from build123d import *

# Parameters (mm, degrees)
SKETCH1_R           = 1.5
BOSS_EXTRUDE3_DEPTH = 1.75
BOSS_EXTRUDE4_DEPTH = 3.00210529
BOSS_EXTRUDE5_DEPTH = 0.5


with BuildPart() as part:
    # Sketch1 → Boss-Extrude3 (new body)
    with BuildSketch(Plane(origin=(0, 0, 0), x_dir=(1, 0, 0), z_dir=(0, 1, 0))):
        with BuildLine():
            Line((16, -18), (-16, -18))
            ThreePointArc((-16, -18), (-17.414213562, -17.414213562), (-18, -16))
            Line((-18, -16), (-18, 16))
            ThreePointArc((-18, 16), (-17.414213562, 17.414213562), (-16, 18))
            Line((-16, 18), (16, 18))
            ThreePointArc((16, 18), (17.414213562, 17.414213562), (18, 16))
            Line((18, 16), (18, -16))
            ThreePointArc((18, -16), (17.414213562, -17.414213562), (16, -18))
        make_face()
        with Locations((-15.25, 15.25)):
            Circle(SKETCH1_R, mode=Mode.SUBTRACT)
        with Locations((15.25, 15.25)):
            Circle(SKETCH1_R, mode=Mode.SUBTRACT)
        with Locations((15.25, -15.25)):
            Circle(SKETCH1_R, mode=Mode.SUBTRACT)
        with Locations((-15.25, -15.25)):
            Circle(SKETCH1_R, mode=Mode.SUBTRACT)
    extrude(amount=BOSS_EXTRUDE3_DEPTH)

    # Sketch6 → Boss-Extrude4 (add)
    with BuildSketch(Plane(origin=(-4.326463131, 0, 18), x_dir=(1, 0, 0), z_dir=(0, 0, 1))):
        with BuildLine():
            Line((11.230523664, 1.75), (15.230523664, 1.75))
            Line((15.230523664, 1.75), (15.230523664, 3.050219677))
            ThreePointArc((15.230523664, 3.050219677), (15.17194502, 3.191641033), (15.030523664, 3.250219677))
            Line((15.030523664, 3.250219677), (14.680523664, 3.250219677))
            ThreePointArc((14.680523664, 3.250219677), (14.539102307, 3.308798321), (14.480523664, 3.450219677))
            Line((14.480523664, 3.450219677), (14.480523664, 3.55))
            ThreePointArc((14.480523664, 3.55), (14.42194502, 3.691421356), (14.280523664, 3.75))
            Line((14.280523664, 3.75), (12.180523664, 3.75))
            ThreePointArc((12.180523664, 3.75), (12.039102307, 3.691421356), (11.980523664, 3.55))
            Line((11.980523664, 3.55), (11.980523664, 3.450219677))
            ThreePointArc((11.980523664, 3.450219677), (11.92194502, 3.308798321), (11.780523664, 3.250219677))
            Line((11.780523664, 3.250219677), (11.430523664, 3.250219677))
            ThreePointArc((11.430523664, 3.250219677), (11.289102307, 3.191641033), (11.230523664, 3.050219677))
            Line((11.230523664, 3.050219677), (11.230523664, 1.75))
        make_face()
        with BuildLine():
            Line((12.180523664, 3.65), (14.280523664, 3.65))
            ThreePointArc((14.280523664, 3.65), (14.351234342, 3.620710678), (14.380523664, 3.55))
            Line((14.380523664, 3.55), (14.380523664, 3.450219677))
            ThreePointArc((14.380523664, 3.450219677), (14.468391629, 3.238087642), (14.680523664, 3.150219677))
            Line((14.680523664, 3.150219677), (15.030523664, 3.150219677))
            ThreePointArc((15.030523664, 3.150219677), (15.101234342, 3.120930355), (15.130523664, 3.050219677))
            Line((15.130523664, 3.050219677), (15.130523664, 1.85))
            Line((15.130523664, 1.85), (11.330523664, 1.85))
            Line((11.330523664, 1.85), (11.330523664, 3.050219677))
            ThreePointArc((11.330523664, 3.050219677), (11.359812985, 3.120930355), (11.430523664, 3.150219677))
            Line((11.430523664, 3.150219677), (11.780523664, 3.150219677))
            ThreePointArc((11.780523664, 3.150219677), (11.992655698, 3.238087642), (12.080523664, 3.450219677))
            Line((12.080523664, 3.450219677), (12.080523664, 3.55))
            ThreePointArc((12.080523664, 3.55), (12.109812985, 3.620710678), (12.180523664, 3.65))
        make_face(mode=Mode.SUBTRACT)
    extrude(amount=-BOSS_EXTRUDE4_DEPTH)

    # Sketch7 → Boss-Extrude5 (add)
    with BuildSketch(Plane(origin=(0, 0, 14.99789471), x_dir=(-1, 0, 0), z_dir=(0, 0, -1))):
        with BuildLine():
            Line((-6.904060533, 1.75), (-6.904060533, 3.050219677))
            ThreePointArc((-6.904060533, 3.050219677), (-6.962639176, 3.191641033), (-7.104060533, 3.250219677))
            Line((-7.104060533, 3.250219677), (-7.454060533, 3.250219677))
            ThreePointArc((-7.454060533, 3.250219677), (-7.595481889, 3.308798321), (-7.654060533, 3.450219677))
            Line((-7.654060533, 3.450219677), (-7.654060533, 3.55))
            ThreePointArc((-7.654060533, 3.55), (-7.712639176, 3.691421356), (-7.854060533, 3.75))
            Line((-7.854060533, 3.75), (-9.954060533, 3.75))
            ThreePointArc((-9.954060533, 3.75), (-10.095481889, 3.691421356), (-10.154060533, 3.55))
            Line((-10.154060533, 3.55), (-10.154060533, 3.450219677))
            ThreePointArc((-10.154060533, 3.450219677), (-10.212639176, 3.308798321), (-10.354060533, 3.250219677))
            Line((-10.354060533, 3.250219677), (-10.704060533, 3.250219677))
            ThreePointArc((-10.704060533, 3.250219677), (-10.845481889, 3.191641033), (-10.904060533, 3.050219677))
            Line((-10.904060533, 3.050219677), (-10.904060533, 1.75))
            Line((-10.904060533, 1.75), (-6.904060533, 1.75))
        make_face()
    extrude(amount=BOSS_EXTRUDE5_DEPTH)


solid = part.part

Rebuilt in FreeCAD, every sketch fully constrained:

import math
import FreeCAD as App
import Part
import Sketcher

V = App.Vector
Q = App.Units.Quantity

doc = App.newDocument("Part")
body = doc.addObject("PartDesign::Body", "Body")

# Sketch on XZ plane
sketch1 = body.newObject("Sketcher::SketchObject", "Sketch")
sketch1.AttachmentSupport = (doc.getObject("XZ_Plane"), [""])
sketch1.MapMode = "FlatFace"
sketch1.addGeometry(Part.LineSegment(V(-16, 18, 0), V(16, 18, 0)), False)
sketch1.addGeometry(Part.ArcOfCircle(Part.Circle(V(16, 16, 0), V(0, 0, 1), 2), math.radians(0), math.radians(90)), False)
sketch1.addGeometry(Part.LineSegment(V(18, 16, 0), V(18, -16, 0)), False)
sketch1.addGeometry(Part.ArcOfCircle(Part.Circle(V(16, -16, 0), V(0, 0, 1), 2), math.radians(-90), math.radians(0)), False)
sketch1.addGeometry(Part.LineSegment(V(16, -18, 0), V(-16, -18, 0)), False)
sketch1.addGeometry(Part.ArcOfCircle(Part.Circle(V(-16, -16, 0), V(0, 0, 1), 2), math.radians(-180), math.radians(-90)), False)
sketch1.addGeometry(Part.LineSegment(V(-18, -16, 0), V(-18, 16, 0)), False)
sketch1.addGeometry(Part.ArcOfCircle(Part.Circle(V(-16, 16, 0), V(0, 0, 1), 2), math.radians(90), math.radians(180)), False)
sketch1.addGeometry(Part.Circle(V(15.2, 15.2, 0), V(0, 0, 1), 1.5), False)
sketch1.addGeometry(Part.Circle(V(-15.2, 15.2, 0), V(0, 0, 1), 1.5), False)
sketch1.addGeometry(Part.Circle(V(15.2, -15.2, 0), V(0, 0, 1), 1.5), False)
sketch1.addGeometry(Part.Circle(V(-15.2, -15.2, 0), V(0, 0, 1), 1.5), False)
sketch1.addConstraint(Sketcher.Constraint("Tangent", 0, 2, 1, 2))
sketch1.addConstraint(Sketcher.Constraint("Tangent", 1, 1, 2, 1))
sketch1.addConstraint(Sketcher.Constraint("Tangent", 2, 2, 3, 2))
sketch1.addConstraint(Sketcher.Constraint("Tangent", 3, 1, 4, 1))
sketch1.addConstraint(Sketcher.Constraint("Tangent", 4, 2, 5, 2))
sketch1.addConstraint(Sketcher.Constraint("Tangent", 5, 1, 6, 1))
sketch1.addConstraint(Sketcher.Constraint("Tangent", 6, 2, 7, 2))
sketch1.addConstraint(Sketcher.Constraint("Tangent", 7, 1, 0, 1))
sketch1.addConstraint(Sketcher.Constraint("Horizontal", 0))
sketch1.addConstraint(Sketcher.Constraint("Vertical", 2))
sketch1.addConstraint(Sketcher.Constraint("Horizontal", 4))
sketch1.addConstraint(Sketcher.Constraint("Vertical", 6))
sketch1.addConstraint(Sketcher.Constraint("Equal", 1, 3))
sketch1.addConstraint(Sketcher.Constraint("Equal", 3, 5))
sketch1.addConstraint(Sketcher.Constraint("Equal", 5, 7))
sketch1.addConstraint(Sketcher.Constraint("Equal", 8, 9))
sketch1.addConstraint(Sketcher.Constraint("Equal", 9, 10))
sketch1.addConstraint(Sketcher.Constraint("Equal", 10, 11))
sketch1.addConstraint(Sketcher.Constraint("Symmetric", 1, 3, 5, 3, -1, 1))
sketch1.addConstraint(Sketcher.Constraint("Symmetric", 9, 3, 10, 3, -1, 1))
sketch1.addConstraint(Sketcher.Constraint("Symmetric", 8, 3, 11, 3, -1, 1))
sketch1.addConstraint(Sketcher.Constraint("Symmetric", 8, 3, 9, 3, -2))
sketch1.addConstraint(Sketcher.Constraint("Equal", 4, 2))
sketch1.addConstraint(Sketcher.Constraint("Diameter", 8, Q("3 mm")))
sketch1.addConstraint(Sketcher.Constraint("Radius", 1, Q("2 mm")))
sketch1.addConstraint(Sketcher.Constraint("DistanceX", 0, 1, 0, 2, Q("32 mm")))
sketch1.addConstraint(Sketcher.Constraint("DistanceX", 9, 3, 8, 3, Q("30.5 mm")))
sketch1.addConstraint(Sketcher.Constraint("DistanceY", 10, 3, 8, 3, Q("30.5 mm")))
pad1 = body.newObject("PartDesign::Pad", "Pad")
pad1.Profile = sketch1
pad1.Length = 1.75
pad1.Reversed = True

# Sketch on XY plane
sketch2 = body.newObject("Sketcher::SketchObject", "Sketch001")
sketch2.AttachmentSupport = (doc.getObject("XY_Plane"), [""])
sketch2.MapMode = "FlatFace"
sketch2.AttachmentOffset = App.Placement(V(0, 0, 18), App.Rotation())
sketch2.addGeometry(Part.LineSegment(V(6.9, 1.75, 0), V(10.9, 1.75, 0)), False)
sketch2.addGeometry(Part.LineSegment(V(10.9, 1.75, 0), V(10.9, 3.05, 0)), False)
sketch2.addGeometry(Part.ArcOfCircle(Part.Circle(V(10.7, 3.05, 0), V(0, 0, 1), 0.2), math.radians(0), math.radians(90)), False)
sketch2.addGeometry(Part.LineSegment(V(10.7, 3.25, 0), V(10.35, 3.25, 0)), False)
sketch2.addGeometry(Part.ArcOfCircle(Part.Circle(V(10.35, 3.45, 0), V(0, 0, 1), 0.2), math.radians(180), math.radians(270)), False)
sketch2.addGeometry(Part.LineSegment(V(10.15, 3.45, 0), V(10.15, 3.55, 0)), False)
sketch2.addGeometry(Part.ArcOfCircle(Part.Circle(V(9.95, 3.55, 0), V(0, 0, 1), 0.2), math.radians(0), math.radians(90)), False)
sketch2.addGeometry(Part.LineSegment(V(9.95, 3.75, 0), V(7.85, 3.75, 0)), False)
sketch2.addGeometry(Part.ArcOfCircle(Part.Circle(V(7.85, 3.55, 0), V(0, 0, 1), 0.2), math.radians(90), math.radians(180)), False)
sketch2.addGeometry(Part.LineSegment(V(7.65, 3.55, 0), V(7.65, 3.45, 0)), False)
sketch2.addGeometry(Part.ArcOfCircle(Part.Circle(V(7.45, 3.45, 0), V(0, 0, 1), 0.2), math.radians(-90), math.radians(0)), False)
sketch2.addGeometry(Part.LineSegment(V(7.45, 3.25, 0), V(7.1, 3.25, 0)), False)
sketch2.addGeometry(Part.ArcOfCircle(Part.Circle(V(7.1, 3.05, 0), V(0, 0, 1), 0.2), math.radians(90), math.radians(180)), False)
sketch2.addGeometry(Part.LineSegment(V(6.9, 3.05, 0), V(6.9, 1.75, 0)), False)
sketch2.addGeometry(Part.ArcOfCircle(Part.Circle(V(7.85, 3.55, 0), V(0, 0, 1), 0.1), math.radians(90), math.radians(180)), False)
sketch2.addGeometry(Part.LineSegment(V(7.85, 3.65, 0), V(9.95, 3.65, 0)), False)
sketch2.addGeometry(Part.ArcOfCircle(Part.Circle(V(9.95, 3.55, 0), V(0, 0, 1), 0.1), math.radians(0), math.radians(90)), False)
sketch2.addGeometry(Part.LineSegment(V(10.05, 3.55, 0), V(10.05, 3.45, 0)), False)
sketch2.addGeometry(Part.ArcOfCircle(Part.Circle(V(10.35, 3.45, 0), V(0, 0, 1), 0.3), math.radians(180), math.radians(270)), False)
sketch2.addGeometry(Part.LineSegment(V(10.35, 3.15, 0), V(10.7, 3.15, 0)), False)
sketch2.addGeometry(Part.ArcOfCircle(Part.Circle(V(10.7, 3.05, 0), V(0, 0, 1), 0.1), math.radians(0), math.radians(90)), False)
sketch2.addGeometry(Part.LineSegment(V(10.8, 3.05, 0), V(10.8, 1.85, 0)), False)
sketch2.addGeometry(Part.LineSegment(V(10.8, 1.85, 0), V(7, 1.85, 0)), False)
sketch2.addGeometry(Part.LineSegment(V(7, 1.85, 0), V(7, 3.05, 0)), False)
sketch2.addGeometry(Part.ArcOfCircle(Part.Circle(V(7.1, 3.05, 0), V(0, 0, 1), 0.1), math.radians(90), math.radians(180)), False)
sketch2.addGeometry(Part.LineSegment(V(7.1, 3.15, 0), V(7.45, 3.15, 0)), False)
sketch2.addGeometry(Part.ArcOfCircle(Part.Circle(V(7.45, 3.45, 0), V(0, 0, 1), 0.3), math.radians(-90), math.radians(0)), False)
sketch2.addGeometry(Part.LineSegment(V(7.75, 3.45, 0), V(7.75, 3.55, 0)), False)
sketch2.addConstraint(Sketcher.Constraint("Coincident", 0, 2, 1, 1))
sketch2.addConstraint(Sketcher.Constraint("Tangent", 1, 2, 2, 1))
sketch2.addConstraint(Sketcher.Constraint("Tangent", 2, 2, 3, 1))
sketch2.addConstraint(Sketcher.Constraint("Tangent", 3, 2, 4, 2))
sketch2.addConstraint(Sketcher.Constraint("Tangent", 4, 1, 5, 1))
sketch2.addConstraint(Sketcher.Constraint("Tangent", 5, 2, 6, 1))
sketch2.addConstraint(Sketcher.Constraint("Tangent", 6, 2, 7, 1))
sketch2.addConstraint(Sketcher.Constraint("Tangent", 7, 2, 8, 1))
sketch2.addConstraint(Sketcher.Constraint("Tangent", 8, 2, 9, 1))
sketch2.addConstraint(Sketcher.Constraint("Tangent", 9, 2, 10, 2))
sketch2.addConstraint(Sketcher.Constraint("Tangent", 10, 1, 11, 1))
sketch2.addConstraint(Sketcher.Constraint("Tangent", 11, 2, 12, 1))
sketch2.addConstraint(Sketcher.Constraint("Tangent", 12, 2, 13, 1))
sketch2.addConstraint(Sketcher.Constraint("Coincident", 13, 2, 0, 1))
sketch2.addConstraint(Sketcher.Constraint("Tangent", 14, 1, 15, 1))
sketch2.addConstraint(Sketcher.Constraint("Tangent", 15, 2, 16, 2))
sketch2.addConstraint(Sketcher.Constraint("Tangent", 16, 1, 17, 1))
sketch2.addConstraint(Sketcher.Constraint("Tangent", 17, 2, 18, 1))
sketch2.addConstraint(Sketcher.Constraint("Tangent", 18, 2, 19, 1))
sketch2.addConstraint(Sketcher.Constraint("Tangent", 19, 2, 20, 2))
sketch2.addConstraint(Sketcher.Constraint("Tangent", 20, 1, 21, 1))
sketch2.addConstraint(Sketcher.Constraint("Coincident", 21, 2, 22, 1))
sketch2.addConstraint(Sketcher.Constraint("Coincident", 22, 2, 23, 1))
sketch2.addConstraint(Sketcher.Constraint("Tangent", 23, 2, 24, 2))
sketch2.addConstraint(Sketcher.Constraint("Tangent", 24, 1, 25, 1))
sketch2.addConstraint(Sketcher.Constraint("Tangent", 25, 2, 26, 1))
sketch2.addConstraint(Sketcher.Constraint("Tangent", 26, 2, 27, 1))
sketch2.addConstraint(Sketcher.Constraint("Tangent", 27, 2, 14, 2))
sketch2.addConstraint(Sketcher.Constraint("Horizontal", 0))
sketch2.addConstraint(Sketcher.Constraint("Vertical", 1))
sketch2.addConstraint(Sketcher.Constraint("Horizontal", 3))
sketch2.addConstraint(Sketcher.Constraint("Vertical", 5))
sketch2.addConstraint(Sketcher.Constraint("Horizontal", 7))
sketch2.addConstraint(Sketcher.Constraint("Vertical", 9))
sketch2.addConstraint(Sketcher.Constraint("Horizontal", 11))
sketch2.addConstraint(Sketcher.Constraint("Vertical", 13))
sketch2.addConstraint(Sketcher.Constraint("Horizontal", 15))
sketch2.addConstraint(Sketcher.Constraint("Vertical", 17))
sketch2.addConstraint(Sketcher.Constraint("Horizontal", 19))
sketch2.addConstraint(Sketcher.Constraint("Vertical", 21))
sketch2.addConstraint(Sketcher.Constraint("Horizontal", 22))
sketch2.addConstraint(Sketcher.Constraint("Vertical", 23))
sketch2.addConstraint(Sketcher.Constraint("Horizontal", 25))
sketch2.addConstraint(Sketcher.Constraint("Vertical", 27))
sketch2.addConstraint(Sketcher.Constraint("Coincident", 14, 3, 8, 3))
sketch2.addConstraint(Sketcher.Constraint("Coincident", 16, 3, 6, 3))
sketch2.addConstraint(Sketcher.Constraint("Coincident", 18, 3, 4, 3))
sketch2.addConstraint(Sketcher.Constraint("Coincident", 20, 3, 2, 3))
sketch2.addConstraint(Sketcher.Constraint("Coincident", 24, 3, 12, 3))
sketch2.addConstraint(Sketcher.Constraint("Coincident", 26, 3, 10, 3))
sketch2.addConstraint(Sketcher.Constraint("Equal", 2, 4))
sketch2.addConstraint(Sketcher.Constraint("Equal", 4, 6))
sketch2.addConstraint(Sketcher.Constraint("Equal", 6, 8))
sketch2.addConstraint(Sketcher.Constraint("Equal", 8, 10))
sketch2.addConstraint(Sketcher.Constraint("Equal", 10, 12))
sketch2.addConstraint(Sketcher.Constraint("Horizontal", 4, 3, 10, 3))
sketch2.addConstraint(Sketcher.Constraint("Equal", 3, 11))
sketch2.addConstraint(Sketcher.Constraint("Radius", 2, Q("0.2 mm")))
sketch2.addConstraint(Sketcher.Constraint("Radius", 14, Q("0.1 mm")))
sketch2.addConstraint(Sketcher.Constraint("DistanceX", 0, 1, 0, 2, Q("4 mm")))
sketch2.addConstraint(Sketcher.Constraint("DistanceX", 7, 2, 7, 1, Q("2.1 mm")))
sketch2.addConstraint(Sketcher.Constraint("DistanceY", 0, 2, 6, 3, Q("1.8 mm")))
sketch2.addConstraint(Sketcher.Constraint("DistanceY", 0, 2, 21, 2, Q("0.1 mm")))
sketch2.addConstraint(Sketcher.Constraint("DistanceY", -1, 1, 6, 3, Q("3.55 mm")))
sketch2.addConstraint(Sketcher.Constraint("DistanceY", 1, 1, 1, 2, Q("1.30022 mm")))
sketch2.addConstraint(Sketcher.Constraint("DistanceX", -1, 1, 2, 3, Q("10.704061 mm")))
pad2 = body.newObject("PartDesign::Pad", "Pad001")
pad2.Profile = sketch2
pad2.Length = 3.002105
pad2.Reversed = True

# Sketch on XY plane
sketch3 = body.newObject("Sketcher::SketchObject", "Sketch002")
sketch3.AttachmentSupport = (doc.getObject("XY_Plane"), [""])
sketch3.MapMode = "FlatFace"
sketch3.AttachmentOffset = App.Placement(V(0, 0, 14.997895), App.Rotation())
sketch3.addGeometry(Part.LineSegment(V(6.9, 1.75, 0), V(6.9, 3.05, 0)), False)
sketch3.addGeometry(Part.ArcOfCircle(Part.Circle(V(7.1, 3.05, 0), V(0, 0, 1), 0.2), math.radians(90), math.radians(180)), False)
sketch3.addGeometry(Part.LineSegment(V(7.1, 3.25, 0), V(7.45, 3.25, 0)), False)
sketch3.addGeometry(Part.ArcOfCircle(Part.Circle(V(7.45, 3.45, 0), V(0, 0, 1), 0.2), math.radians(-90), math.radians(0)), False)
sketch3.addGeometry(Part.LineSegment(V(7.65, 3.45, 0), V(7.65, 3.55, 0)), False)
sketch3.addGeometry(Part.ArcOfCircle(Part.Circle(V(7.85, 3.55, 0), V(0, 0, 1), 0.2), math.radians(90), math.radians(180)), False)
sketch3.addGeometry(Part.LineSegment(V(7.85, 3.75, 0), V(9.95, 3.75, 0)), False)
sketch3.addGeometry(Part.ArcOfCircle(Part.Circle(V(9.95, 3.55, 0), V(0, 0, 1), 0.2), math.radians(0), math.radians(90)), False)
sketch3.addGeometry(Part.LineSegment(V(10.15, 3.55, 0), V(10.15, 3.45, 0)), False)
sketch3.addGeometry(Part.ArcOfCircle(Part.Circle(V(10.35, 3.45, 0), V(0, 0, 1), 0.2), math.radians(180), math.radians(270)), False)
sketch3.addGeometry(Part.LineSegment(V(10.35, 3.25, 0), V(10.7, 3.25, 0)), False)
sketch3.addGeometry(Part.ArcOfCircle(Part.Circle(V(10.7, 3.05, 0), V(0, 0, 1), 0.2), math.radians(0), math.radians(90)), False)
sketch3.addGeometry(Part.LineSegment(V(10.9, 3.05, 0), V(10.9, 1.75, 0)), False)
sketch3.addGeometry(Part.LineSegment(V(10.9, 1.75, 0), V(6.9, 1.75, 0)), False)
sketch3.addConstraint(Sketcher.Constraint("Tangent", 0, 2, 1, 2))
sketch3.addConstraint(Sketcher.Constraint("Tangent", 1, 1, 2, 1))
sketch3.addConstraint(Sketcher.Constraint("Tangent", 2, 2, 3, 1))
sketch3.addConstraint(Sketcher.Constraint("Tangent", 3, 2, 4, 1))
sketch3.addConstraint(Sketcher.Constraint("Tangent", 4, 2, 5, 2))
sketch3.addConstraint(Sketcher.Constraint("Tangent", 5, 1, 6, 1))
sketch3.addConstraint(Sketcher.Constraint("Tangent", 6, 2, 7, 2))
sketch3.addConstraint(Sketcher.Constraint("Tangent", 7, 1, 8, 1))
sketch3.addConstraint(Sketcher.Constraint("Tangent", 8, 2, 9, 1))
sketch3.addConstraint(Sketcher.Constraint("Tangent", 9, 2, 10, 1))
sketch3.addConstraint(Sketcher.Constraint("Tangent", 10, 2, 11, 2))
sketch3.addConstraint(Sketcher.Constraint("Tangent", 11, 1, 12, 1))
sketch3.addConstraint(Sketcher.Constraint("Coincident", 12, 2, 13, 1))
sketch3.addConstraint(Sketcher.Constraint("Coincident", 13, 2, 0, 1))
sketch3.addConstraint(Sketcher.Constraint("Vertical", 0))
sketch3.addConstraint(Sketcher.Constraint("Horizontal", 2))
sketch3.addConstraint(Sketcher.Constraint("Vertical", 4))
sketch3.addConstraint(Sketcher.Constraint("Horizontal", 6))
sketch3.addConstraint(Sketcher.Constraint("Vertical", 8))
sketch3.addConstraint(Sketcher.Constraint("Horizontal", 10))
sketch3.addConstraint(Sketcher.Constraint("Vertical", 12))
sketch3.addConstraint(Sketcher.Constraint("Horizontal", 13))
sketch3.addConstraint(Sketcher.Constraint("Equal", 1, 3))
sketch3.addConstraint(Sketcher.Constraint("Equal", 3, 5))
sketch3.addConstraint(Sketcher.Constraint("Equal", 5, 7))
sketch3.addConstraint(Sketcher.Constraint("Equal", 7, 9))
sketch3.addConstraint(Sketcher.Constraint("Equal", 9, 11))
sketch3.addConstraint(Sketcher.Constraint("Horizontal", 3, 3, 9, 3))
sketch3.addConstraint(Sketcher.Constraint("Equal", 2, 10))
sketch3.addConstraint(Sketcher.Constraint("Radius", 1, Q("0.2 mm")))
sketch3.addConstraint(Sketcher.Constraint("DistanceX", 13, 2, 13, 1, Q("4 mm")))
sketch3.addConstraint(Sketcher.Constraint("DistanceX", 6, 1, 6, 2, Q("2.1 mm")))
sketch3.addConstraint(Sketcher.Constraint("DistanceY", -1, 1, 5, 3, Q("3.55 mm")))
sketch3.addConstraint(Sketcher.Constraint("DistanceY", -1, 1, 12, 2, Q("1.75 mm")))
sketch3.addConstraint(Sketcher.Constraint("DistanceY", 0, 1, 0, 2, Q("1.30022 mm")))
sketch3.addConstraint(Sketcher.Constraint("DistanceX", -1, 1, 1, 3, Q("7.104061 mm")))
pad3 = body.newObject("PartDesign::Pad", "Pad002")
pad3.Profile = sketch3
pad3.Length = 0.5
pad3.Reversed = True

doc.recompute()
